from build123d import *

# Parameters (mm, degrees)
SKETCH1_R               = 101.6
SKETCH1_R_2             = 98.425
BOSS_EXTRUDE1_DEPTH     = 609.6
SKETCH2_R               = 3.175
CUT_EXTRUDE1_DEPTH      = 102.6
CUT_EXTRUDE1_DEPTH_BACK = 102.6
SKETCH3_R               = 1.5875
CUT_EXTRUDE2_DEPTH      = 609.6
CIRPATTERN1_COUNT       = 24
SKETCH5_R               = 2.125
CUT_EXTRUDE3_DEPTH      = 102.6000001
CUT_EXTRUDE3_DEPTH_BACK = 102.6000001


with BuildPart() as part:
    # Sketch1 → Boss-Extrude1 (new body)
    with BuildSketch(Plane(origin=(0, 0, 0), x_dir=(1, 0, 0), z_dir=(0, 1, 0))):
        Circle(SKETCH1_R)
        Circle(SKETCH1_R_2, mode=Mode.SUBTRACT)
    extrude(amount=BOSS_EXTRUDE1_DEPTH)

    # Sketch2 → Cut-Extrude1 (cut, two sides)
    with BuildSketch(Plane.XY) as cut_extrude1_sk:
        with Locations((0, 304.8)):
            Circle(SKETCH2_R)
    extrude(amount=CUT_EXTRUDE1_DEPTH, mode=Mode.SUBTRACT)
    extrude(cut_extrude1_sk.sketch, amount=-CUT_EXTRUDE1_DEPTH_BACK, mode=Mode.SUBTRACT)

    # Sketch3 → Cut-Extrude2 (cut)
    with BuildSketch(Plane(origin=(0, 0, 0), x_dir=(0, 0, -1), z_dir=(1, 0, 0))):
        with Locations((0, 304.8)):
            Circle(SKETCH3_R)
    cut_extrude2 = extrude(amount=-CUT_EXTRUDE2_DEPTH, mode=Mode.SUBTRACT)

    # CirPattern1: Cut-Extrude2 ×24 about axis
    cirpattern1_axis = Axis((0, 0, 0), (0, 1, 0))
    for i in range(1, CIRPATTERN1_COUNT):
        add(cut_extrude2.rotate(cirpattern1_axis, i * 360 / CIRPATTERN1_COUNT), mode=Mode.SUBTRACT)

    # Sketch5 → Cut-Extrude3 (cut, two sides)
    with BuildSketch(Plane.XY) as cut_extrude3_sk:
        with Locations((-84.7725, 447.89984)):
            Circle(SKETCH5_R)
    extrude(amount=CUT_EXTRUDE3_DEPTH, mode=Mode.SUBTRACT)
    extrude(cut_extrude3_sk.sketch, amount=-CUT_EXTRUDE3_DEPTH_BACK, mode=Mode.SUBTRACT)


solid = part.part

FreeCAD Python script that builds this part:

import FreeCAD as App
import Part
import Sketcher
Q = App.Units.Quantity

doc = App.newDocument("Part")
body = doc.addObject("PartDesign::Body", "Body")

# Sketch on XZ plane
sketch1 = body.newObject("Sketcher::SketchObject", "Sketch")
sketch1.AttachmentSupport = (doc.getObject("XZ_Plane"), [""])
sketch1.MapMode = "FlatFace"
sketch1.addGeometry(Part.Circle(App.Vector(0, 0, 0), App.Vector(0, 0, 1), 102), False)
sketch1.addGeometry(Part.Circle(App.Vector(0, 0, 0), App.Vector(0, 0, 1), 98), False)
sketch1.addConstraint(Sketcher.Constraint("Coincident", 0, 3, -1, 1))
sketch1.addConstraint(Sketcher.Constraint("Coincident", 1, 3, -1, 1))
sketch1.addConstraint(Sketcher.Constraint("Diameter", 0, Q("8 in")))
sketch1.addConstraint(Sketcher.Constraint("Diameter", 1, Q("7.75 in")))
pad1 = body.newObject("PartDesign::Pad", "Pad")
pad1.Profile = sketch1
pad1.Length = Q("24 in")
pad1.Reversed = True

# Sketch on XY plane
sketch2 = body.newObject("Sketcher::SketchObject", "Sketch001")
sketch2.AttachmentSupport = (doc.getObject("XY_Plane"), [""])
sketch2.MapMode = "FlatFace"
sketch2.addGeometry(Part.Circle(App.Vector(0, 304.8, 0), App.Vector(0, 0, 1), 3.2), False)
sketch2.addConstraint(Sketcher.Constraint("PointOnObject", 0, 3, -2))
sketch2.addConstraint(Sketcher.Constraint("Diameter", 0, Q("0.25 in")))
sketch2.addConstraint(Sketcher.Constraint("DistanceY", -1, 1, 0, 3, Q("12 in")))
pocket1 = body.newObject("PartDesign::Pocket", "Pocket")
pocket1.Profile = sketch2
pocket1.Type = "ThroughAll"
pocket1.Midplane = True

# Sketch on YZ plane
sketch3 = body.newObject("Sketcher::SketchObject", "Sketch002")
sketch3.AttachmentSupport = (doc.getObject("YZ_Plane"), [""])
sketch3.MapMode = "FlatFace"
sketch3.addGeometry(Part.Circle(App.Vector(304.8, 0, 0), App.Vector(0, 0, 1), 1.6), False)
sketch3.addConstraint(Sketcher.Constraint("PointOnObject", 0, 3, -1))
sketch3.addConstraint(Sketcher.Constraint("Diameter", 0, Q("0.125 in")))
sketch3.addConstraint(Sketcher.Constraint("DistanceX", -1, 1, 0, 3, Q("12 in")))
pocket2 = body.newObject("PartDesign::Pocket", "Pocket001")
pocket2.Profile = sketch3
pocket2.Length = Q("24 in")
doc.recompute()

polarpattern = body.newObject("PartDesign::PolarPattern", "PolarPattern")
polarpattern.Originals = [pocket2]
polarpattern.Axis = (doc.getObject("Y_Axis"), [""])
polarpattern.Angle = 360
polarpattern.Occurrences = 24
body.Tip = polarpattern

# Sketch on XY plane
sketch4 = body.newObject("Sketcher::SketchObject", "Sketch003")
sketch4.AttachmentSupport = (doc.getObject("XY_Plane"), [""])
sketch4.MapMode = "FlatFace"
sketch4.addGeometry(Part.Circle(App.Vector(-84.7725, 447.89984, 0), App.Vector(0, 0, 1), 2.125), False)
sketch4.addConstraint(Sketcher.Constraint("Diameter", 0, Q("4.25 mm")))
sketch4.addConstraint(Sketcher.Constraint("DistanceX", 0, 3, -1, 1, Q("3.3375 in")))
sketch4.addConstraint(Sketcher.Constraint("DistanceY", -1, 1, 0, 3, Q("447.89984 mm")))
pocket3 = body.newObject("PartDesign::Pocket", "Pocket002")
pocket3.Profile = sketch4
pocket3.Type = "ThroughAll"
pocket3.Midplane = True

doc.recompute()
